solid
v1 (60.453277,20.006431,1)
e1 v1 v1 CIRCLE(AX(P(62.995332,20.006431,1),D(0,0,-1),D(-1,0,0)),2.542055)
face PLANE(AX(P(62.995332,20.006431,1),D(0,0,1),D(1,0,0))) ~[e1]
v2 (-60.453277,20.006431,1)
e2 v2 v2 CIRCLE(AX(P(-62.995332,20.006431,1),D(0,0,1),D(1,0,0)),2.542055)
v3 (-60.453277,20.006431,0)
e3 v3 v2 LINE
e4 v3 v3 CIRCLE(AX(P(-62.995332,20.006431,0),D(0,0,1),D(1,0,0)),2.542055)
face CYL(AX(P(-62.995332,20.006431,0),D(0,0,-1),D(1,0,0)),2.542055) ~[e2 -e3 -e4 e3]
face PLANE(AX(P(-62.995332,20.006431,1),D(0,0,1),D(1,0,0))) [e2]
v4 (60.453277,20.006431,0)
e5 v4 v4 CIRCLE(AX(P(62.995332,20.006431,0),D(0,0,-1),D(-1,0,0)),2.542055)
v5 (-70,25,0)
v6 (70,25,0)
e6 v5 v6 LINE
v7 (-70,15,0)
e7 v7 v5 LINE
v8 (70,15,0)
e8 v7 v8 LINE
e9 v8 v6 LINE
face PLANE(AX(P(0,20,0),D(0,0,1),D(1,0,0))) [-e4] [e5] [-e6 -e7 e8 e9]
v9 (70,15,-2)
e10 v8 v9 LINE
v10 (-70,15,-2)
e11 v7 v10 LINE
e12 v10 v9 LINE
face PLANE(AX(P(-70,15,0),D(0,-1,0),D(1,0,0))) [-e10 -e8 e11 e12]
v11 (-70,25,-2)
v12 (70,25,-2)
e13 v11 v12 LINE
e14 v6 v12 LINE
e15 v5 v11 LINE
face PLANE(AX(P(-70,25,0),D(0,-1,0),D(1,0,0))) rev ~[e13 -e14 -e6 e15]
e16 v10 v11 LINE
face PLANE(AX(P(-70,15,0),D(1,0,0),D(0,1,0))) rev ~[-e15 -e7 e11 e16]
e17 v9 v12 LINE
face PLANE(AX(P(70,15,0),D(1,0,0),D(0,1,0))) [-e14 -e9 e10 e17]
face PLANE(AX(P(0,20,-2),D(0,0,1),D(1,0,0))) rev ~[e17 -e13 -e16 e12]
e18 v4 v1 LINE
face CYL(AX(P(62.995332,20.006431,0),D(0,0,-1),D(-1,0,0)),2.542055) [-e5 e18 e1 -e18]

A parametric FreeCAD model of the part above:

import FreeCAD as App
import Part
import Sketcher
Q = App.Units.Quantity

doc = App.newDocument("Part")
params = doc.addObject("Spreadsheet::Sheet", "Params")
for row, (alias, value) in enumerate([
    ("sketch1_width", "140 mm"),
    ("sketch1_height", "10 mm"),
    ("pad1_length", "2 mm"),
    ("pad2_length", "1 mm"),
], start=1):
    params.set(f"A{row}", alias)
    params.set(f"B{row}", "=" + value)
    params.setAlias(f"B{row}", alias)

body = doc.addObject("PartDesign::Body", "Body")

# Sketch on XY plane
sketch1 = body.newObject("Sketcher::SketchObject", "Sketch")
sketch1.AttachmentSupport = (doc.getObject("XY_Plane"), [""])
sketch1.MapMode = "FlatFace"
sketch1.addGeometry([
    Part.LineSegment(App.Vector(-70, 25, 0), App.Vector(-70, 15, 0)),
    Part.LineSegment(App.Vector(-70, 15, 0), App.Vector(70, 15, 0)),
    Part.LineSegment(App.Vector(70, 15, 0), App.Vector(70, 25, 0)),
    Part.LineSegment(App.Vector(70, 25, 0), App.Vector(-70, 25, 0)),
], False)
sketch1.addConstraint([
    Sketcher.Constraint("Coincident", 0, 2, 1, 1),
    Sketcher.Constraint("Coincident", 1, 2, 2, 1),
    Sketcher.Constraint("Coincident", 2, 2, 3, 1),
    Sketcher.Constraint("Coincident", 3, 2, 0, 1),
    Sketcher.Constraint("Vertical", 0),
    Sketcher.Constraint("Horizontal", 1),
    Sketcher.Constraint("Vertical", 2),
    Sketcher.Constraint("Horizontal", 3),
    Sketcher.Constraint("DistanceX", 1, 1, 1, 2, Q("140 mm")),
    Sketcher.Constraint("DistanceY", 0, 2, 0, 1, Q("10 mm")),
    Sketcher.Constraint("DistanceX", 0, 2, -1, 1, Q("70 mm")),
    Sketcher.Constraint("DistanceY", -1, 1, 0, 2, Q("15 mm")),
])
sketch1.setExpression("Constraints[8]", "Params.sketch1_width")
sketch1.setExpression("Constraints[9]", "Params.sketch1_height")
pad1 = body.newObject("PartDesign::Pad", "Pad")
pad1.Profile = sketch1
pad1.setExpression("Length", "Params.pad1_length")
pad1.Reversed = True

# Sketch on XY plane
sketch2 = body.newObject("Sketcher::SketchObject", "Sketch001")
sketch2.AttachmentSupport = (doc.getObject("XY_Plane"), [""])
sketch2.MapMode = "FlatFace"
sketch2.addGeometry(Part.Circle(App.Vector(-62.995332, 20.006431, 0), App.Vector(0, 0, 1), 2.542055), False)
sketch2.addConstraint([
    Sketcher.Constraint("Diameter", 0, Q("5.08411 mm")),
    Sketcher.Constraint("DistanceX", 0, 3, -1, 1, Q("62.995332 mm")),
    Sketcher.Constraint("DistanceY", -1, 1, 0, 3, Q("20.006431 mm")),
])
pad2 = body.newObject("PartDesign::Pad", "Pad001")
pad2.Profile = sketch2
pad2.setExpression("Length", "Params.pad2_length")
doc.recompute()

mirrored = body.newObject("PartDesign::Mirrored", "Mirrored")
mirrored.Originals = [pad2]
mirrored.MirrorPlane = (doc.getObject("YZ_Plane"), [""])
body.Tip = mirrored

doc.recompute()
